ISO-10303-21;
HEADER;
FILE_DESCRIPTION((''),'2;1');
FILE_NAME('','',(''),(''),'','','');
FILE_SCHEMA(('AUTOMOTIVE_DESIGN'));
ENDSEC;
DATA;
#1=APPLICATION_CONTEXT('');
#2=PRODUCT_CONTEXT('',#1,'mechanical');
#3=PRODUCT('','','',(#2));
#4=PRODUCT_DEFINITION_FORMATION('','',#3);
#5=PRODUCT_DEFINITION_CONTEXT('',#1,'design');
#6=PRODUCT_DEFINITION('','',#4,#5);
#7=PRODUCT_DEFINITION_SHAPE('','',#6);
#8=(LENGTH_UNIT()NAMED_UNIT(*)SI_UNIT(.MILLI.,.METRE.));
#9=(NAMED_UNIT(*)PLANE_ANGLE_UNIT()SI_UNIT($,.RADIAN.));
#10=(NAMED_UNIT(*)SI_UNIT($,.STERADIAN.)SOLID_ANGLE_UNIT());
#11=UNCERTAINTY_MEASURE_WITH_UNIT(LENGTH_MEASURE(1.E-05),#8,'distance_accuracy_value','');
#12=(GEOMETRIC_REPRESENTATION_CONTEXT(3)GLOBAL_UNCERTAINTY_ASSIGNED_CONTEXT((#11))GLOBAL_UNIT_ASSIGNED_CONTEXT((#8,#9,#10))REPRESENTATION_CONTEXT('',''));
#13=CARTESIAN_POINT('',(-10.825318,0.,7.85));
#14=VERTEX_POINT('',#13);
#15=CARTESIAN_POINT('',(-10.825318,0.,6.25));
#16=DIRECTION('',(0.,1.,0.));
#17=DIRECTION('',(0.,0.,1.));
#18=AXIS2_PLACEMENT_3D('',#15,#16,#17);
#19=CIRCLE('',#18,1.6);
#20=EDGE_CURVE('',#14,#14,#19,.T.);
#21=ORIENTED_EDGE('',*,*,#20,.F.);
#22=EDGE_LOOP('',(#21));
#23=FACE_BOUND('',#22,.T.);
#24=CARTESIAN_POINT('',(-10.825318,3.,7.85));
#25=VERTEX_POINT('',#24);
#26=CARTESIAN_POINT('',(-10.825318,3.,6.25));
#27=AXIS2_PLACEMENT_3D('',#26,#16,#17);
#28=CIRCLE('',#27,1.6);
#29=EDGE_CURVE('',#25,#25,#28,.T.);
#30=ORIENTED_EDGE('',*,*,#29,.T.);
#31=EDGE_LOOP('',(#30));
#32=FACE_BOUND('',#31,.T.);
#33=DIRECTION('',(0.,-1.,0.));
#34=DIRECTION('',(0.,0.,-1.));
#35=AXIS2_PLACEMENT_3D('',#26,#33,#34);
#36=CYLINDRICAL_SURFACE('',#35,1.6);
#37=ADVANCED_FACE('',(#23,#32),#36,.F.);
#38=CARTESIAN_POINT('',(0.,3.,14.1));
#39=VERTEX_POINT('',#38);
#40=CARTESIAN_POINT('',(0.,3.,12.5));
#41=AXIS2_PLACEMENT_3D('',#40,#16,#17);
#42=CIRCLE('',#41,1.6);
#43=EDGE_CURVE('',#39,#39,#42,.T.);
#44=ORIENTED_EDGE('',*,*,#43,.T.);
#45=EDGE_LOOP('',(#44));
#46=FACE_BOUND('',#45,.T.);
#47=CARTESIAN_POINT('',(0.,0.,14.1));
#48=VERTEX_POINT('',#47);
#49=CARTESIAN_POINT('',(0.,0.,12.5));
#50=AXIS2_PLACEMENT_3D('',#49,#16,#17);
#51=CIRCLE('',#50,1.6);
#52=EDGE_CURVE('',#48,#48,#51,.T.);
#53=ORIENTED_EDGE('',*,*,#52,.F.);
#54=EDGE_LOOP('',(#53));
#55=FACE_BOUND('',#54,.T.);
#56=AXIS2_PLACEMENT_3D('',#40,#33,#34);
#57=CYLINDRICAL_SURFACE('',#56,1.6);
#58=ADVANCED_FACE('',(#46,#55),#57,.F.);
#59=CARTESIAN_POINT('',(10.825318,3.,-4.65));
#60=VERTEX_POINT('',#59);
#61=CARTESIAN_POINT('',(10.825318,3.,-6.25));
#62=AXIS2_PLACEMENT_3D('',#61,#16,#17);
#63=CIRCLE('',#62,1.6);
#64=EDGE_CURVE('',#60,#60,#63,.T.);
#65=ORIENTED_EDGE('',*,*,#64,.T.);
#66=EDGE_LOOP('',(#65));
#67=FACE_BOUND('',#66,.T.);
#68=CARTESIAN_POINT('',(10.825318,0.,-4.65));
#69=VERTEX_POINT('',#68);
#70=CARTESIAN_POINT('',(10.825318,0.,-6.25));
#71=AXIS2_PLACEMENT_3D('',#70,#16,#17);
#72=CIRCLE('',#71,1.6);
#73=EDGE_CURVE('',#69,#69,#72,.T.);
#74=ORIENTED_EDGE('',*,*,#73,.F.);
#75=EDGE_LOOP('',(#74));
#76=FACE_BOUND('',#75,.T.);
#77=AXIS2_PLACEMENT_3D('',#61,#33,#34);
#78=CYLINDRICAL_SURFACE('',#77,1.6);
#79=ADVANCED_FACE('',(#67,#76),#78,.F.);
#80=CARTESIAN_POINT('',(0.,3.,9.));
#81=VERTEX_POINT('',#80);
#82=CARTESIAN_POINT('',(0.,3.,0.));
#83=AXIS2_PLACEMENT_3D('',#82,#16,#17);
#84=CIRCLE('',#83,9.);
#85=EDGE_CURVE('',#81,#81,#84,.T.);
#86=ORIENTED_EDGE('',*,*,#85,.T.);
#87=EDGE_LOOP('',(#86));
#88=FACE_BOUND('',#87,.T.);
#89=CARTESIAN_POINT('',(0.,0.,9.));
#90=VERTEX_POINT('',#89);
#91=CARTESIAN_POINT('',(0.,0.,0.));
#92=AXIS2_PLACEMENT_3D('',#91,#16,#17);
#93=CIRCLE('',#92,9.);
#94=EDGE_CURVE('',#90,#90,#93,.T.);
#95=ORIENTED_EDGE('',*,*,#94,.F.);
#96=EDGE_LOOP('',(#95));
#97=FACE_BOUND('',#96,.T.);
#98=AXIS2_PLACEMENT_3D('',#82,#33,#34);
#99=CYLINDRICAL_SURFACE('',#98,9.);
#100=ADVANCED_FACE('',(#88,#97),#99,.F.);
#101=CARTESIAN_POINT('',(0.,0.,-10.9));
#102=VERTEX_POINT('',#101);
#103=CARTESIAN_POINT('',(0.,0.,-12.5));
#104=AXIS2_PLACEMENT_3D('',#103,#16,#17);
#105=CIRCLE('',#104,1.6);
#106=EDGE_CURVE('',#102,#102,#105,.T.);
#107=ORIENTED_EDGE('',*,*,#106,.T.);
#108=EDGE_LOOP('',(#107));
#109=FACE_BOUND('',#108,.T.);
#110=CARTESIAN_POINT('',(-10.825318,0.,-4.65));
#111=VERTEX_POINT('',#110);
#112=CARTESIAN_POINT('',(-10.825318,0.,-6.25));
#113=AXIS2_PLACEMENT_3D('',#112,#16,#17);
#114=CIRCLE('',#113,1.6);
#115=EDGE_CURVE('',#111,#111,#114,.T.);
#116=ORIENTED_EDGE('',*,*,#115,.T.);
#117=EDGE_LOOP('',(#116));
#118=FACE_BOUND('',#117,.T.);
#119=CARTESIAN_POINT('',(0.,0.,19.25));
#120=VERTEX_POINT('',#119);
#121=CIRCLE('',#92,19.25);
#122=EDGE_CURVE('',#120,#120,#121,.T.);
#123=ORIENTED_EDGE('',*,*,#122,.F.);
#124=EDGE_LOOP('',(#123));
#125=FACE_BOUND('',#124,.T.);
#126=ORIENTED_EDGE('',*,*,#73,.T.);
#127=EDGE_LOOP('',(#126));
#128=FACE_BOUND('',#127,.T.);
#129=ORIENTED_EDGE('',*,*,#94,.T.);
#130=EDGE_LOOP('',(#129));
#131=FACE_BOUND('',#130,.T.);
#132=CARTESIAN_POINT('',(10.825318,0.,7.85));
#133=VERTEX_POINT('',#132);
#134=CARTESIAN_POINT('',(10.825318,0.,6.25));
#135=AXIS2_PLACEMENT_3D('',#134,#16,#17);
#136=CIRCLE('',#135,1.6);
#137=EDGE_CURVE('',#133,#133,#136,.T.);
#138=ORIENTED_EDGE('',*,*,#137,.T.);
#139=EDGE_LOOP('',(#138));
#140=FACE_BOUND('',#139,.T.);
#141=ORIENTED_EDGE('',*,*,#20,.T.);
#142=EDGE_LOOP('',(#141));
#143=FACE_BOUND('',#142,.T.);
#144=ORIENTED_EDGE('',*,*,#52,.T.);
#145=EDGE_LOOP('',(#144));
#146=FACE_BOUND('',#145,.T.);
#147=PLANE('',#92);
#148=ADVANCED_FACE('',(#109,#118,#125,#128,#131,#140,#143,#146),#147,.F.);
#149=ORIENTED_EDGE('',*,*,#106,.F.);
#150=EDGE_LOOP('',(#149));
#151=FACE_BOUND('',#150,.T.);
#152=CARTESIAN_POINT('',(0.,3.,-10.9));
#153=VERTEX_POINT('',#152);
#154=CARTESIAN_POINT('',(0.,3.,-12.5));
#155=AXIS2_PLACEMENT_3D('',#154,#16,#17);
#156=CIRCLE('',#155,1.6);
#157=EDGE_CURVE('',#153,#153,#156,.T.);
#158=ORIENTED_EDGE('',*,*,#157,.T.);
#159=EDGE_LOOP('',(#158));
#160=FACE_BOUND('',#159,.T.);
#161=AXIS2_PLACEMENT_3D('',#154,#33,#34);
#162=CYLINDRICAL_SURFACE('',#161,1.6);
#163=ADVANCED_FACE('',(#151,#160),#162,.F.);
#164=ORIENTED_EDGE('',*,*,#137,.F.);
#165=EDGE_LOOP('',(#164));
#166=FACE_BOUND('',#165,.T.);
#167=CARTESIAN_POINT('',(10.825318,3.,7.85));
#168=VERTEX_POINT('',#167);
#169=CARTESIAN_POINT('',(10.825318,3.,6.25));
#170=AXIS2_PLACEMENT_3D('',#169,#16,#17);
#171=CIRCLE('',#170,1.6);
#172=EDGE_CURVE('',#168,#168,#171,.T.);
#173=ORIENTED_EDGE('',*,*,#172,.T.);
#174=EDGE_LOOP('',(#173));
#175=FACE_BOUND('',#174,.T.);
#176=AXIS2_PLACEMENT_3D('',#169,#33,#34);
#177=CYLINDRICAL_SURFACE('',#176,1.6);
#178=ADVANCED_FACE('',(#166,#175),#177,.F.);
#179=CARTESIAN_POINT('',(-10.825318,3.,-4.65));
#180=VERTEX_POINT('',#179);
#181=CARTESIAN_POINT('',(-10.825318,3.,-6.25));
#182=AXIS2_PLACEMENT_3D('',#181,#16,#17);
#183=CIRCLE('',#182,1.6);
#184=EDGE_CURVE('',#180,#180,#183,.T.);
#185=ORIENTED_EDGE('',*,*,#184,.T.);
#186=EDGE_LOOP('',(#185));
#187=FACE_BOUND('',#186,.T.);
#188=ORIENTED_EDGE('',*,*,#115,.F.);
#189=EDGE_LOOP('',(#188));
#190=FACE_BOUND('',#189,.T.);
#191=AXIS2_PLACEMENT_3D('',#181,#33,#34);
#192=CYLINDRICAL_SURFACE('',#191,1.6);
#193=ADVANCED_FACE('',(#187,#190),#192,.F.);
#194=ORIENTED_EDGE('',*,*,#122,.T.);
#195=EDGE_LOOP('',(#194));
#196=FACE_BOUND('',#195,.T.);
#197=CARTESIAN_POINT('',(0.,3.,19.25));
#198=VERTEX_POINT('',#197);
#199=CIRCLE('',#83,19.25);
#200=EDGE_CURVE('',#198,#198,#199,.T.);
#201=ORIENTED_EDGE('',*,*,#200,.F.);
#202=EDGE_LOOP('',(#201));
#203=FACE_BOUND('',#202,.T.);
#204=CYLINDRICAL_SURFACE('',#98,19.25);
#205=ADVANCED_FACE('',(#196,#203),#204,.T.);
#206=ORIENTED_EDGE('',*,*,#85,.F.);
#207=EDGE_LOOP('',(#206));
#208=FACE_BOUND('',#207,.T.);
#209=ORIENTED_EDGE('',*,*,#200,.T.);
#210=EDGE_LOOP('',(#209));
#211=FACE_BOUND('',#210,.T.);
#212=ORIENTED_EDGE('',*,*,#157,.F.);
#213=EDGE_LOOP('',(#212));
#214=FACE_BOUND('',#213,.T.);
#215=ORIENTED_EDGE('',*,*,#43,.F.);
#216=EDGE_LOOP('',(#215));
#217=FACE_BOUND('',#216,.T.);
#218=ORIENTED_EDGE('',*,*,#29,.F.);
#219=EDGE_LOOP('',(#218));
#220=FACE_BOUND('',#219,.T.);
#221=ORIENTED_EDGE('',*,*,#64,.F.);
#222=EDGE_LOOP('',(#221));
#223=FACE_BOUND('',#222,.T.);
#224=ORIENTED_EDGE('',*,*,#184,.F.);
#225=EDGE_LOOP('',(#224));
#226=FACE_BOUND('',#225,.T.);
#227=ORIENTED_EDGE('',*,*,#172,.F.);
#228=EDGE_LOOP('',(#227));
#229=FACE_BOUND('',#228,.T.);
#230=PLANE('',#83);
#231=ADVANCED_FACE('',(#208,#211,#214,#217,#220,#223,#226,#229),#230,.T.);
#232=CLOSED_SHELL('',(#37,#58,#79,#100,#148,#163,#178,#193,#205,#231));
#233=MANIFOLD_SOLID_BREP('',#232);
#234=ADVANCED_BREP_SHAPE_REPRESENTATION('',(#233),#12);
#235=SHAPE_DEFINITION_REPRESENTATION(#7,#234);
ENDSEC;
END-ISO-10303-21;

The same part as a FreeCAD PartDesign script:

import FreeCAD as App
import Part
import Sketcher

doc = App.newDocument("Part")
body = doc.addObject("PartDesign::Body", "Body")

# Sketch on XZ plane
sketch1 = body.newObject("Sketcher::SketchObject", "Sketch")
sketch1.AttachmentSupport = (doc.getObject("XZ_Plane"), [""])
sketch1.MapMode = "FlatFace"
sketch1.addGeometry([
    Part.Circle(App.Vector(0, 0, 0), App.Vector(0, 0, 1), 19.2),  # 0
    Part.Circle(App.Vector(-10.8, -6.2, 0), App.Vector(0, 0, 1), 1.6),  # 1
    Part.Circle(App.Vector(0, -12.5, 0), App.Vector(0, 0, 1), 1.6),  # 2
    Part.Circle(App.Vector(-10.8, 6.2, 0), App.Vector(0, 0, 1), 1.6),  # 3
    Part.Circle(App.Vector(0, 0, 0), App.Vector(0, 0, 1), 9),  # 4
    Part.Circle(App.Vector(10.8, -6.2, 0), App.Vector(0, 0, 1), 1.6),  # 5
    Part.Circle(App.Vector(0, 12.5, 0), App.Vector(0, 0, 1), 1.6),  # 6
    Part.Circle(App.Vector(10.8, 6.2, 0), App.Vector(0, 0, 1), 1.6),  # 7
], False)
sketch1.addConstraint([
    Sketcher.Constraint("Coincident", 0, 3, -1, 1),
    Sketcher.Constraint("Coincident", 4, 3, -1, 1),
    Sketcher.Constraint("Equal", 1, 2),
    Sketcher.Constraint("Equal", 2, 3),
    Sketcher.Constraint("Equal", 3, 5),
    Sketcher.Constraint("Equal", 5, 6),
    Sketcher.Constraint("Equal", 6, 7),
    Sketcher.Constraint("Symmetric", 3, 3, 5, 3, -1, 1),
    Sketcher.Constraint("Symmetric", 2, 3, 6, 3, -1, 1),
    Sketcher.Constraint("Symmetric", 1, 3, 7, 3, -1, 1),
    Sketcher.Constraint("Symmetric", 1, 3, 5, 3, -2),
    Sketcher.Constraint("PointOnObject", 2, 3, -2),
    Sketcher.Constraint("Diameter", 4, 18.0),
    Sketcher.Constraint("Diameter", 0, 38.5),
    Sketcher.Constraint("Diameter", 1, 3.2),
    Sketcher.Constraint("DistanceY", 2, 3, -1, 1, 12.5),
    Sketcher.Constraint("DistanceY", 1, 3, 3, 3, 12.5),
    Sketcher.Constraint("DistanceX", 1, 3, -1, 1, 10.825318),
])
pad1 = body.newObject("PartDesign::Pad", "Pad")
pad1.Profile = sketch1
pad1.Length = 3
pad1.Reversed = True

doc.recompute()
